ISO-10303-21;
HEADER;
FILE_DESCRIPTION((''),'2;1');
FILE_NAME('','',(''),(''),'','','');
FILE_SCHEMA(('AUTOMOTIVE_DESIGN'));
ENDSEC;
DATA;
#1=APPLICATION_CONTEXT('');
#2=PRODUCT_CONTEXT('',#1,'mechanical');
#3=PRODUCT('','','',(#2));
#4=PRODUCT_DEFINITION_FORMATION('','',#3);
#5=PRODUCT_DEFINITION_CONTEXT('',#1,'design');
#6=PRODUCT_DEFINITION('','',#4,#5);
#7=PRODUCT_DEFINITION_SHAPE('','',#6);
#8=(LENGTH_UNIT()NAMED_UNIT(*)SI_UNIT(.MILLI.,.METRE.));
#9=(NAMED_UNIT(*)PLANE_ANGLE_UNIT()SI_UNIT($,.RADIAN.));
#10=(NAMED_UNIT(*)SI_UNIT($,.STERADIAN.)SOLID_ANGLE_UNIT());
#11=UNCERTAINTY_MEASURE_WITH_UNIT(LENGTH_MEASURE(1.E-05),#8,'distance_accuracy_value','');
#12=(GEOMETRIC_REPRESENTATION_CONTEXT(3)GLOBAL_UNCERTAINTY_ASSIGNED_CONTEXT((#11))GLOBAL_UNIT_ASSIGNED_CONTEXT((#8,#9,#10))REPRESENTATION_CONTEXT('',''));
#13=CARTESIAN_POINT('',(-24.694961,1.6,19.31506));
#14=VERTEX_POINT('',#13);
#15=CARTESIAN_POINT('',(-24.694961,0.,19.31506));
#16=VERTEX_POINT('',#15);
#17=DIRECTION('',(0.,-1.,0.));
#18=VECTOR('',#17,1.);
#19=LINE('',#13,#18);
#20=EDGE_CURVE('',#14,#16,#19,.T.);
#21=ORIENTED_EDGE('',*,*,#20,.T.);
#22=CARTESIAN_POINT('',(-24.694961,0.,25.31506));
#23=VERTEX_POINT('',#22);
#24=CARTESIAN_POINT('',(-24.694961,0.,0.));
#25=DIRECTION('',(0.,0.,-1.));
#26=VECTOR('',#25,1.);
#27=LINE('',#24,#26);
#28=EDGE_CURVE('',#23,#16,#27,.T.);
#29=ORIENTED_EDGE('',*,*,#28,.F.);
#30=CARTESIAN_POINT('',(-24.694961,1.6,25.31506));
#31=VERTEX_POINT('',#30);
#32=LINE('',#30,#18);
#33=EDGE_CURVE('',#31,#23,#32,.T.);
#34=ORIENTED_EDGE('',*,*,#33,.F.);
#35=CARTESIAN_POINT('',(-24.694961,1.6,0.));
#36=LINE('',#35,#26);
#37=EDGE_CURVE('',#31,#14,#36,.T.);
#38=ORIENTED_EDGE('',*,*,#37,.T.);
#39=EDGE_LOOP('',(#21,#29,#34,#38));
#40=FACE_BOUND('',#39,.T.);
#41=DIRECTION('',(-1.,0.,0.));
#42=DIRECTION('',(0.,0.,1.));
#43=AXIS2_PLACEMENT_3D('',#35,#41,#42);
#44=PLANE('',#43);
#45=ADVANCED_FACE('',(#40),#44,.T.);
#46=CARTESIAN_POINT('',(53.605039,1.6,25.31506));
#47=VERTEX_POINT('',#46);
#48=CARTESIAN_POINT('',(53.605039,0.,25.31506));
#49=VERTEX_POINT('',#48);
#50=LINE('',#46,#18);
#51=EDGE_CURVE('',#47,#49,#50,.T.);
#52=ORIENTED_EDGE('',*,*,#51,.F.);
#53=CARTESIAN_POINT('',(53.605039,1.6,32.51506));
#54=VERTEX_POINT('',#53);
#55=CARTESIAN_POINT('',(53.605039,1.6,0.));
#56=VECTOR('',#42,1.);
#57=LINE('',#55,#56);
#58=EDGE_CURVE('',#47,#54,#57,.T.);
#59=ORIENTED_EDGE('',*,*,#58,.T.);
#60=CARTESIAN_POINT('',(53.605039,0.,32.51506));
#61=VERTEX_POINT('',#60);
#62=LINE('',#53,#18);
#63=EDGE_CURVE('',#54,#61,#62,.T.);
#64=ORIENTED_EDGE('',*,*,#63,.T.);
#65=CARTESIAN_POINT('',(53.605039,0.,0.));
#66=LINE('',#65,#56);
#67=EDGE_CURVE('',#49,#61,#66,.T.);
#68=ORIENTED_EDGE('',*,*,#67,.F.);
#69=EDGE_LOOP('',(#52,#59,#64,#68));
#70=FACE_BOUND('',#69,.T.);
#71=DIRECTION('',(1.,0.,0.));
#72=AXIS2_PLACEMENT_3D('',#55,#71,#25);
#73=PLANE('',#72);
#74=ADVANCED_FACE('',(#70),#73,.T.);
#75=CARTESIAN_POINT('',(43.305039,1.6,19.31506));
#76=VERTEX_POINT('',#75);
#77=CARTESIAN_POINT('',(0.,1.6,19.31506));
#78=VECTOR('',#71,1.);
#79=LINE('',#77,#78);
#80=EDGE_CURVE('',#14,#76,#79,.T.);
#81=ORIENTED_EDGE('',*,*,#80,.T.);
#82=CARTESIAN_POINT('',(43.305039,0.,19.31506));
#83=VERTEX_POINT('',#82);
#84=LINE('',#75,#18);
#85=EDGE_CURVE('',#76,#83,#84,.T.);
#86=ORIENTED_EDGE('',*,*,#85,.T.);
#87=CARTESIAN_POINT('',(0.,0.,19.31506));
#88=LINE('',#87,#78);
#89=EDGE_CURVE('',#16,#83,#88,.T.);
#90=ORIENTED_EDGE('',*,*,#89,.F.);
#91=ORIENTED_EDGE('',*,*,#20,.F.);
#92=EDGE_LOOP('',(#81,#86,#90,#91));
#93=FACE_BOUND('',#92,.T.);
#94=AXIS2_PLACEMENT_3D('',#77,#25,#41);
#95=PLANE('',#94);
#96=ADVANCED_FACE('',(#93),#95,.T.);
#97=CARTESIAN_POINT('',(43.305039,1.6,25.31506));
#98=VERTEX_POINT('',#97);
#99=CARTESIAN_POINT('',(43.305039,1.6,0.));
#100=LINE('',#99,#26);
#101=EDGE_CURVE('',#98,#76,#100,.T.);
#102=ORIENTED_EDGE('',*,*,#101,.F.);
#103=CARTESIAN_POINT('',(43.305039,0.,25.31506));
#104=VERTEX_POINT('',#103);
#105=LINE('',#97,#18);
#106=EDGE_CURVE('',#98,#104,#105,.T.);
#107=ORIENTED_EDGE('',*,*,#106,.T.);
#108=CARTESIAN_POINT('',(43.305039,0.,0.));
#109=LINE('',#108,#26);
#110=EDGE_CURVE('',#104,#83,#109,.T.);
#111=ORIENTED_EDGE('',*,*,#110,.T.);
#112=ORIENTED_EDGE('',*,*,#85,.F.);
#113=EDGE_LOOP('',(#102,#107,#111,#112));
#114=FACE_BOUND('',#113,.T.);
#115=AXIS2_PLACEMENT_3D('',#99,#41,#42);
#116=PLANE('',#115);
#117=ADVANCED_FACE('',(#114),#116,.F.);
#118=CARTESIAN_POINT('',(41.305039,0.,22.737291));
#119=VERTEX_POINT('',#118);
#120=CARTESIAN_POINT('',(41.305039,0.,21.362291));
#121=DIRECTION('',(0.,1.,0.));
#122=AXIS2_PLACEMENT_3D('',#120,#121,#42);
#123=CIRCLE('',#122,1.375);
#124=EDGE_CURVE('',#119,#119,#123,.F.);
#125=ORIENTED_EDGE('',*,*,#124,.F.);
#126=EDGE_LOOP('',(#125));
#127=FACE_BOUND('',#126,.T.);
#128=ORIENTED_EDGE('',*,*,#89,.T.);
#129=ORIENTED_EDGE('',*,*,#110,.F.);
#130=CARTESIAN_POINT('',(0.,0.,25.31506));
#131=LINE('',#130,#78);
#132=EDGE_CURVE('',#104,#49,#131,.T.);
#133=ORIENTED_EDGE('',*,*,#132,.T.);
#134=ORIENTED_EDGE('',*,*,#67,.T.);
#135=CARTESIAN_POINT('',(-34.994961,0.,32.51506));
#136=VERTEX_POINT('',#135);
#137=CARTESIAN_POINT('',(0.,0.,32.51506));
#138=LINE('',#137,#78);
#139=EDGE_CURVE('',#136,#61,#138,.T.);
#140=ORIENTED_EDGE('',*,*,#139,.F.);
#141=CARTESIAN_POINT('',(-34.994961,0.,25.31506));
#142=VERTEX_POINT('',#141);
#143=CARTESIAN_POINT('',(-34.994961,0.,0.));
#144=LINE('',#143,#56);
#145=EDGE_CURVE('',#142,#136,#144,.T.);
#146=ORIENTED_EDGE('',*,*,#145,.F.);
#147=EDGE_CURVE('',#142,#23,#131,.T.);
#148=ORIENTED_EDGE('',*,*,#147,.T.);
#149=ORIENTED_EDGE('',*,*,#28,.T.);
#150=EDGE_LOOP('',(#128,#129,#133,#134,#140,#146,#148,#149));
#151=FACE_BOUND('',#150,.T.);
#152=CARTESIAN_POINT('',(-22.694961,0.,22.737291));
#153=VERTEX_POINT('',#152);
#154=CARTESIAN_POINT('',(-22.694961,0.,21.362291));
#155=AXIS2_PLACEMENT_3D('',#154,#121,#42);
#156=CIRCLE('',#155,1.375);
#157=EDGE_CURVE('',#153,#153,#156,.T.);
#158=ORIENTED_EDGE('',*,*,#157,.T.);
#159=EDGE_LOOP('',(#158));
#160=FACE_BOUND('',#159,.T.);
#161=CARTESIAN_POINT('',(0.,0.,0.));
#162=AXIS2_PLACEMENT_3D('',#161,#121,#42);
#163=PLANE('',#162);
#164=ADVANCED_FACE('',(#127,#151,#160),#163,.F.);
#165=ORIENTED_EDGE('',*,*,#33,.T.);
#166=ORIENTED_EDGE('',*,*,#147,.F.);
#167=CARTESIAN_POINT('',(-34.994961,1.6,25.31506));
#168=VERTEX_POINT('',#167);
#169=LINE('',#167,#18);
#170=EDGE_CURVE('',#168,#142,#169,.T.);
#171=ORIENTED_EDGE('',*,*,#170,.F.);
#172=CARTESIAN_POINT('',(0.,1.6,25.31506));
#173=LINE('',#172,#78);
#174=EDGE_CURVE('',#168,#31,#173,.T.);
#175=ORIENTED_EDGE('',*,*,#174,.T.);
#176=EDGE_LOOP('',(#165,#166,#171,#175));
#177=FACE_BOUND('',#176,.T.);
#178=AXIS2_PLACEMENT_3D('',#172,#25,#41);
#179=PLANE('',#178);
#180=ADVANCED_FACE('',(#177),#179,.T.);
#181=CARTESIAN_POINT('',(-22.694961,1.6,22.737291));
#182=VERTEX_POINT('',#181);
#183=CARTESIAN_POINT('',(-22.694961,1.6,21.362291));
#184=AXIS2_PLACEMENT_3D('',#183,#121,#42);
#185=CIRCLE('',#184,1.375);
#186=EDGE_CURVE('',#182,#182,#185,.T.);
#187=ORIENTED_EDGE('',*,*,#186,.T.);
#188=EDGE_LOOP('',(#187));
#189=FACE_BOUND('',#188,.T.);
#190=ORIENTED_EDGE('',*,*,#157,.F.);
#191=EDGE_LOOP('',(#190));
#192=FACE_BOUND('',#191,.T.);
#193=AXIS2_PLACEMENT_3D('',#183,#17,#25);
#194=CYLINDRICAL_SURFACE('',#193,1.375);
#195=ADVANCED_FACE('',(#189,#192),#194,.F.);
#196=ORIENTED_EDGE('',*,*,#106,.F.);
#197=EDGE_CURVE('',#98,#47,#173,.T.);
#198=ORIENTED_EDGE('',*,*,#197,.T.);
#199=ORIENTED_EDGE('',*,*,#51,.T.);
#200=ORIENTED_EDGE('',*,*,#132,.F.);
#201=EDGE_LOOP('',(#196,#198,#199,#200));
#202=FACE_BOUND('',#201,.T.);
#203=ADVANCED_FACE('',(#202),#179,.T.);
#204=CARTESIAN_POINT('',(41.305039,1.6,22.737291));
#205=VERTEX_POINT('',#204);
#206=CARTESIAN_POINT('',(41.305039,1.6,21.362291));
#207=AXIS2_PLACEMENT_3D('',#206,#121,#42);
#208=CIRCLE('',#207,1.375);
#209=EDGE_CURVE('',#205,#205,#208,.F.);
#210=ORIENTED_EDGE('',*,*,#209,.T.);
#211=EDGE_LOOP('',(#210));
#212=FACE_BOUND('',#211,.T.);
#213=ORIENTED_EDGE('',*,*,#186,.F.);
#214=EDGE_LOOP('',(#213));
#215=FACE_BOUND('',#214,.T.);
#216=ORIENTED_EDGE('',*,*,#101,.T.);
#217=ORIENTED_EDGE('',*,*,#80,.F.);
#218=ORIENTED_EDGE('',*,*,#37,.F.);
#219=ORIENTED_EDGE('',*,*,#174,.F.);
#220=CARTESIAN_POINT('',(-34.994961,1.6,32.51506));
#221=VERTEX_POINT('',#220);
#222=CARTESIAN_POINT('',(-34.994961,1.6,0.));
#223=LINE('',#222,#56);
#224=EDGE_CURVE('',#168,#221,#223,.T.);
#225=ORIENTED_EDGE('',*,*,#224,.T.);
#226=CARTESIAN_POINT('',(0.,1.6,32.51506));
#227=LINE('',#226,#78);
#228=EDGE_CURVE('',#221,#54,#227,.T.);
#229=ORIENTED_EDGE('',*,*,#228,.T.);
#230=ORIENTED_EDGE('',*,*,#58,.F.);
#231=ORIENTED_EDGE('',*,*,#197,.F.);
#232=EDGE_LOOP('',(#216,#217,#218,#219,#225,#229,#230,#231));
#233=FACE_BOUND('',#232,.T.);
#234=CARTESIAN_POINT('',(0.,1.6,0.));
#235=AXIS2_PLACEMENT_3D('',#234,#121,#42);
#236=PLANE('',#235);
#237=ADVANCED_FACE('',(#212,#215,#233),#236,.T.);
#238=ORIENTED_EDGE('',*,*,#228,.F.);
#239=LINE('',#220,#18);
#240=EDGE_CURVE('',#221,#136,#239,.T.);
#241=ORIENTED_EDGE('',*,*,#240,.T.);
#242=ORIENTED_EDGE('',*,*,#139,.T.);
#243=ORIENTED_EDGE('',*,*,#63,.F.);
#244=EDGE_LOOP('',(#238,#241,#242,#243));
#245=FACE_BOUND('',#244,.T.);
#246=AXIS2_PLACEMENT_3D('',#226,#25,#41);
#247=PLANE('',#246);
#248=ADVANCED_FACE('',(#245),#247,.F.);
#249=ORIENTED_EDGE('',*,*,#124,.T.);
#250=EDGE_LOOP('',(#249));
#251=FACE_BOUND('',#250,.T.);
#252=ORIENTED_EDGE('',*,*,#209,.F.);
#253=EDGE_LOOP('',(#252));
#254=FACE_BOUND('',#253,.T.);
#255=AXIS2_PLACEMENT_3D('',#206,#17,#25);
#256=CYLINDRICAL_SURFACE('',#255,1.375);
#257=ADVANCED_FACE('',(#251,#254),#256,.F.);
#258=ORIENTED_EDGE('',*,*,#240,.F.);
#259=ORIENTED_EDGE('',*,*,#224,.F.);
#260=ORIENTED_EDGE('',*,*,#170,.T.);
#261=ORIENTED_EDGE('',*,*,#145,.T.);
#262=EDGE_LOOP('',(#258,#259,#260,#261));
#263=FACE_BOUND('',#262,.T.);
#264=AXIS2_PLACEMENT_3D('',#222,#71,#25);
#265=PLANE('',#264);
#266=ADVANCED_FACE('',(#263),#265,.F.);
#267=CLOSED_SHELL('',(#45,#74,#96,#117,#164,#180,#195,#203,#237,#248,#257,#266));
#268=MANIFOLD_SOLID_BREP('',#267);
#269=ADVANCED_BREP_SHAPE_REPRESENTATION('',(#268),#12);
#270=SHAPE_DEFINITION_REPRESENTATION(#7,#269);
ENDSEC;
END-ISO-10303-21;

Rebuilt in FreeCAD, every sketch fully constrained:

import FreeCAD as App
import Part
import Sketcher
from FreeCAD import Vector


def add_polygon(sketch, points):
    """Adds a closed chain of lines whose ends are joined by coincident constraints."""
    first, n = sketch.GeometryCount, len(points)
    for a, b in zip(points, points[1:] + points[:1]):
        sketch.addGeometry(Part.LineSegment(App.Vector(*a, 0), App.Vector(*b, 0)), False)
    for i in range(n):
        sketch.addConstraint(Sketcher.Constraint("Coincident", first + i, 2, first + (i + 1) % n, 1))

doc = App.newDocument("Part")
params = doc.addObject("Spreadsheet::Sheet", "Params")
for row, (alias, value) in enumerate([
    ("sketch1_diameter", "2.75 mm"),
    ("sketch1_width", "68 mm"),
    ("sketch1_height", "6 mm"),
    ("sketch1_width2", "88.6 mm"),
    ("sketch1_height2", "7.2 mm"),
    ("pad1_length", "1.6 mm"),
], start=1):
    params.set(f"A{row}", alias)
    params.set(f"B{row}", "=" + value)
    params.setAlias(f"B{row}", alias)

body = doc.addObject("PartDesign::Body", "Body")

sketch1 = body.newObject("Sketcher::SketchObject", "Sketch")
sketch1.AttachmentSupport = (doc.getObject("XZ_Plane"), [""])
sketch1.MapMode = "FlatFace"
add_polygon(sketch1, [(-35, 25.3), (-35, 32.5), (53.6, 32.5), (53.6, 25.3), (43.3, 25.3), (43.3, 19.3), (-24.7, 19.3), (-24.7, 25.3)])
sketch1.addGeometry(Part.Circle(Vector(-22.7, 21.4, 0), Vector(0, 0, 1), 1.4), False)
sketch1.addGeometry(Part.Circle(Vector(41.3, 21.4, 0), Vector(0, 0, 1), 1.4), False)
sketch1.addConstraint([
    Sketcher.Constraint("Vertical", 0),
    Sketcher.Constraint("Horizontal", 1),
    Sketcher.Constraint("Vertical", 2),
    Sketcher.Constraint("Horizontal", 3),
    Sketcher.Constraint("Vertical", 4),
    Sketcher.Constraint("Horizontal", 5),
    Sketcher.Constraint("Vertical", 6),
    Sketcher.Constraint("Horizontal", 7),
    Sketcher.Constraint("Equal", 8, 9),
    Sketcher.Constraint("Horizontal", 8, 3, 9, 3),
    Sketcher.Constraint("Horizontal", 3, 2, 6, 2),
    Sketcher.Constraint("Equal", 3, 7),
    Sketcher.Constraint("Diameter", 8, 2.75),
    Sketcher.Constraint("DistanceX", 5, 2, 5, 1, 68.0),
    Sketcher.Constraint("DistanceY", 4, 2, 4, 1, 6.0),
    Sketcher.Constraint("DistanceX", 1, 1, 1, 2, 88.6),
    Sketcher.Constraint("DistanceY", 0, 1, 0, 2, 7.2),
    Sketcher.Constraint("DistanceX", 8, 3, 9, 3, 64.0),
    Sketcher.Constraint("DistanceX", 9, 3, 3, 2, 2.0),
    Sketcher.Constraint("DistanceX", 8, 3, -1, 1, 22.694961),
    Sketcher.Constraint("DistanceY", -1, 1, 8, 3, 21.362291),
    Sketcher.Constraint("DistanceY", -1, 1, 0, 2, 32.51506),
])
sketch1.setExpression("Constraints[20]", "Params.sketch1_diameter")
sketch1.setExpression("Constraints[21]", "Params.sketch1_width")
sketch1.setExpression("Constraints[22]", "Params.sketch1_height")
sketch1.setExpression("Constraints[23]", "Params.sketch1_width2")
sketch1.setExpression("Constraints[24]", "Params.sketch1_height2")
pad1 = body.newObject("PartDesign::Pad", "Pad")
pad1.Profile = sketch1
pad1.setExpression("Length", "Params.pad1_length")
pad1.Reversed = True

doc.recompute()
